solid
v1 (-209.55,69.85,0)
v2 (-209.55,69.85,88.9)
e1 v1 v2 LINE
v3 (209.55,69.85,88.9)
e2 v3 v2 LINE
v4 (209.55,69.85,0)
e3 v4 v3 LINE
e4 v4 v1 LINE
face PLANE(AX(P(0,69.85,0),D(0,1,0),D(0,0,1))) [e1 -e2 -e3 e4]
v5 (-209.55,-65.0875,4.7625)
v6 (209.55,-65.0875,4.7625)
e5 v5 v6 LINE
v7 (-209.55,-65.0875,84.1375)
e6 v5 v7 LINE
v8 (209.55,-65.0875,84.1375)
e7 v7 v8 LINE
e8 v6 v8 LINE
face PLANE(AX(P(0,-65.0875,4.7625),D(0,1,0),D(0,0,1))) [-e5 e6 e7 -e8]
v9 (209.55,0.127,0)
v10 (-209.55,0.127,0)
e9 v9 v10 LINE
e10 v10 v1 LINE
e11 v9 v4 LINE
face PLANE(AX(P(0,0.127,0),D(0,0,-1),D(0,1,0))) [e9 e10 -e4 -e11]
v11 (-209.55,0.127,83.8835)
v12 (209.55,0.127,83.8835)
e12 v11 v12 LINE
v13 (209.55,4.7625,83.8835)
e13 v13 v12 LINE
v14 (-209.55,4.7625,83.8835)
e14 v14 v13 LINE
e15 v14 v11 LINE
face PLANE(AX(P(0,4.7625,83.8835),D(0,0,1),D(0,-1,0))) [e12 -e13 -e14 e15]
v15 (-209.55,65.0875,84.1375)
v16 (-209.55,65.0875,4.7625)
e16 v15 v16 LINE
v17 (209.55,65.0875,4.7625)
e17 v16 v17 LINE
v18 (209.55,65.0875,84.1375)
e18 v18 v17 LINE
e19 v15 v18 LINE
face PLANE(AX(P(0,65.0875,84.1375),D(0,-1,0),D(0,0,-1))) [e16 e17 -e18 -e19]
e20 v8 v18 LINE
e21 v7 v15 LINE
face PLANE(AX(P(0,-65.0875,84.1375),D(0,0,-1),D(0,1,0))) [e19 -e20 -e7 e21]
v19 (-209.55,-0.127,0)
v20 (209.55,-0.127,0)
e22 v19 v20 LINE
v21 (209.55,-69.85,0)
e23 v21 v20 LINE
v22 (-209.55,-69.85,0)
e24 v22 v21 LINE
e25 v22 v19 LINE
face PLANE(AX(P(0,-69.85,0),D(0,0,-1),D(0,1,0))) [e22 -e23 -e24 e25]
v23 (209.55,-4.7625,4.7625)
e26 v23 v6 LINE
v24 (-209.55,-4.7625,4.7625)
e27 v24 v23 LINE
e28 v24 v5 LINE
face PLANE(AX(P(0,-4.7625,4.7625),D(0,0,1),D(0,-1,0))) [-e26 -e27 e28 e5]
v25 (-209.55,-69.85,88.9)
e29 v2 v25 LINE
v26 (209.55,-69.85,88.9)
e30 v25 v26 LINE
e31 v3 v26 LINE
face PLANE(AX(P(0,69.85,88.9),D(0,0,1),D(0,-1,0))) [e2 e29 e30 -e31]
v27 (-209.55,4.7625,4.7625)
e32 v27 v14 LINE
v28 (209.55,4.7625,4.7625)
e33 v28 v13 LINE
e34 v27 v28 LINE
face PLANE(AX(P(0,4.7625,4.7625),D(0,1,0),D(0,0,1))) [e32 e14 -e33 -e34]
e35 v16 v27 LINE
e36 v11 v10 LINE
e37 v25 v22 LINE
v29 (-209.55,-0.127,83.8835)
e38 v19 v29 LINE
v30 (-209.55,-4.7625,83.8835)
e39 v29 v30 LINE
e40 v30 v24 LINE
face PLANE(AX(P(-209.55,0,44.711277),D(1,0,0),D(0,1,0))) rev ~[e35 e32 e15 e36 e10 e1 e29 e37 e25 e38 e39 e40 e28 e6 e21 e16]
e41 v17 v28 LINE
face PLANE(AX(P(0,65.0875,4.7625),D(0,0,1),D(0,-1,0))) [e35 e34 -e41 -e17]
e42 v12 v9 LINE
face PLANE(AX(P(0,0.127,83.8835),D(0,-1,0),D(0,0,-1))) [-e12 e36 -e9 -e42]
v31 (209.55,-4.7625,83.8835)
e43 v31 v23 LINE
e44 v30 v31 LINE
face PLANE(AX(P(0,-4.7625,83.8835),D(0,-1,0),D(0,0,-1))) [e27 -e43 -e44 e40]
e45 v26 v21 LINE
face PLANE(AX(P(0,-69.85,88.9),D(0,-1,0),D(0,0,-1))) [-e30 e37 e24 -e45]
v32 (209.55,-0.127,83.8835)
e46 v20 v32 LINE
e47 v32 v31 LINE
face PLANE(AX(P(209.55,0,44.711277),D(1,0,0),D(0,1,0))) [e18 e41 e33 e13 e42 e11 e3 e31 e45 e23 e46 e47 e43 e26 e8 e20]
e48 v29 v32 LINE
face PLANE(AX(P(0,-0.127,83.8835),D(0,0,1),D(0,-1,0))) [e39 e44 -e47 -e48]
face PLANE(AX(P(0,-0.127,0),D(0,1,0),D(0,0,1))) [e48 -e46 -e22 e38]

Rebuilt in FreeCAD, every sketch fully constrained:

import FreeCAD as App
import Part
import Sketcher

V = App.Vector
Q = App.Units.Quantity


def add_polygon(sketch, points):
    """Adds a closed chain of lines whose ends are joined by coincident constraints."""
    first, n = sketch.GeometryCount, len(points)
    for a, b in zip(points, points[1:] + points[:1]):
        sketch.addGeometry(Part.LineSegment(App.Vector(*a, 0), App.Vector(*b, 0)), False)
    for i in range(n):
        sketch.addConstraint(Sketcher.Constraint("Coincident", first + i, 2, first + (i + 1) % n, 1))

doc = App.newDocument("Part")
body = doc.addObject("PartDesign::Body", "Body")

sketch1 = body.newObject("Sketcher::SketchObject", "Sketch")
sketch1.AttachmentSupport = (doc.getObject("YZ_Plane"), [""])
sketch1.MapMode = "FlatFace"
add_polygon(sketch1, [(69.8, 88.9), (-69.8, 88.9), (-69.8, 0), (-0.1, 0), (-0.1, 83.9), (-4.8, 83.9), (-4.8, 4.8), (-65.1, 4.8), (-65.1, 84.1), (65.1, 84.1), (65.1, 4.8), (4.8, 4.8), (4.8, 83.9), (0.1, 83.9), (0.1, 0), (69.8, 0)])
sketch1.addConstraint([
    Sketcher.Constraint("Horizontal", 0),
    Sketcher.Constraint("Vertical", 1),
    Sketcher.Constraint("Horizontal", 2),
    Sketcher.Constraint("Vertical", 3),
    Sketcher.Constraint("Horizontal", 4),
    Sketcher.Constraint("Vertical", 5),
    Sketcher.Constraint("Horizontal", 6),
    Sketcher.Constraint("Vertical", 7),
    Sketcher.Constraint("Horizontal", 8),
    Sketcher.Constraint("Vertical", 9),
    Sketcher.Constraint("Horizontal", 10),
    Sketcher.Constraint("Vertical", 11),
    Sketcher.Constraint("Horizontal", 12),
    Sketcher.Constraint("Vertical", 13),
    Sketcher.Constraint("Horizontal", 14),
    Sketcher.Constraint("Vertical", 15),
    Sketcher.Constraint("Symmetric", 2, 2, 13, 2, -1, 1),
    Sketcher.Constraint("Symmetric", 6, 2, 9, 2, -2),
    Sketcher.Constraint("Symmetric", 4, 2, 11, 2, -2),
    Sketcher.Constraint("Symmetric", 1, 2, 14, 2, -2),
    Sketcher.Constraint("DistanceX", 0, 2, 0, 1, Q("5.5 in")),
    Sketcher.Constraint("DistanceY", 1, 2, 1, 1, Q("3.5 in")),
    Sketcher.Constraint("DistanceX", 2, 1, 2, 2, Q("2.745 in")),
    Sketcher.Constraint("DistanceX", 6, 2, 6, 1, Q("2.375 in")),
    Sketcher.Constraint("DistanceX", 8, 1, 8, 2, Q("5.125 in")),
    Sketcher.Constraint("DistanceY", 5, 2, 5, 1, Q("3.115 in")),
    Sketcher.Constraint("DistanceY", 7, 1, 7, 2, Q("3.125 in")),
    Sketcher.Constraint("DistanceY", 3, 1, 3, 2, Q("3.3025 in")),
])
pad1 = body.newObject("PartDesign::Pad", "Pad")
pad1.Profile = sketch1
pad1.Length = Q("16.5 in")
pad1.Midplane = True

doc.recompute()
